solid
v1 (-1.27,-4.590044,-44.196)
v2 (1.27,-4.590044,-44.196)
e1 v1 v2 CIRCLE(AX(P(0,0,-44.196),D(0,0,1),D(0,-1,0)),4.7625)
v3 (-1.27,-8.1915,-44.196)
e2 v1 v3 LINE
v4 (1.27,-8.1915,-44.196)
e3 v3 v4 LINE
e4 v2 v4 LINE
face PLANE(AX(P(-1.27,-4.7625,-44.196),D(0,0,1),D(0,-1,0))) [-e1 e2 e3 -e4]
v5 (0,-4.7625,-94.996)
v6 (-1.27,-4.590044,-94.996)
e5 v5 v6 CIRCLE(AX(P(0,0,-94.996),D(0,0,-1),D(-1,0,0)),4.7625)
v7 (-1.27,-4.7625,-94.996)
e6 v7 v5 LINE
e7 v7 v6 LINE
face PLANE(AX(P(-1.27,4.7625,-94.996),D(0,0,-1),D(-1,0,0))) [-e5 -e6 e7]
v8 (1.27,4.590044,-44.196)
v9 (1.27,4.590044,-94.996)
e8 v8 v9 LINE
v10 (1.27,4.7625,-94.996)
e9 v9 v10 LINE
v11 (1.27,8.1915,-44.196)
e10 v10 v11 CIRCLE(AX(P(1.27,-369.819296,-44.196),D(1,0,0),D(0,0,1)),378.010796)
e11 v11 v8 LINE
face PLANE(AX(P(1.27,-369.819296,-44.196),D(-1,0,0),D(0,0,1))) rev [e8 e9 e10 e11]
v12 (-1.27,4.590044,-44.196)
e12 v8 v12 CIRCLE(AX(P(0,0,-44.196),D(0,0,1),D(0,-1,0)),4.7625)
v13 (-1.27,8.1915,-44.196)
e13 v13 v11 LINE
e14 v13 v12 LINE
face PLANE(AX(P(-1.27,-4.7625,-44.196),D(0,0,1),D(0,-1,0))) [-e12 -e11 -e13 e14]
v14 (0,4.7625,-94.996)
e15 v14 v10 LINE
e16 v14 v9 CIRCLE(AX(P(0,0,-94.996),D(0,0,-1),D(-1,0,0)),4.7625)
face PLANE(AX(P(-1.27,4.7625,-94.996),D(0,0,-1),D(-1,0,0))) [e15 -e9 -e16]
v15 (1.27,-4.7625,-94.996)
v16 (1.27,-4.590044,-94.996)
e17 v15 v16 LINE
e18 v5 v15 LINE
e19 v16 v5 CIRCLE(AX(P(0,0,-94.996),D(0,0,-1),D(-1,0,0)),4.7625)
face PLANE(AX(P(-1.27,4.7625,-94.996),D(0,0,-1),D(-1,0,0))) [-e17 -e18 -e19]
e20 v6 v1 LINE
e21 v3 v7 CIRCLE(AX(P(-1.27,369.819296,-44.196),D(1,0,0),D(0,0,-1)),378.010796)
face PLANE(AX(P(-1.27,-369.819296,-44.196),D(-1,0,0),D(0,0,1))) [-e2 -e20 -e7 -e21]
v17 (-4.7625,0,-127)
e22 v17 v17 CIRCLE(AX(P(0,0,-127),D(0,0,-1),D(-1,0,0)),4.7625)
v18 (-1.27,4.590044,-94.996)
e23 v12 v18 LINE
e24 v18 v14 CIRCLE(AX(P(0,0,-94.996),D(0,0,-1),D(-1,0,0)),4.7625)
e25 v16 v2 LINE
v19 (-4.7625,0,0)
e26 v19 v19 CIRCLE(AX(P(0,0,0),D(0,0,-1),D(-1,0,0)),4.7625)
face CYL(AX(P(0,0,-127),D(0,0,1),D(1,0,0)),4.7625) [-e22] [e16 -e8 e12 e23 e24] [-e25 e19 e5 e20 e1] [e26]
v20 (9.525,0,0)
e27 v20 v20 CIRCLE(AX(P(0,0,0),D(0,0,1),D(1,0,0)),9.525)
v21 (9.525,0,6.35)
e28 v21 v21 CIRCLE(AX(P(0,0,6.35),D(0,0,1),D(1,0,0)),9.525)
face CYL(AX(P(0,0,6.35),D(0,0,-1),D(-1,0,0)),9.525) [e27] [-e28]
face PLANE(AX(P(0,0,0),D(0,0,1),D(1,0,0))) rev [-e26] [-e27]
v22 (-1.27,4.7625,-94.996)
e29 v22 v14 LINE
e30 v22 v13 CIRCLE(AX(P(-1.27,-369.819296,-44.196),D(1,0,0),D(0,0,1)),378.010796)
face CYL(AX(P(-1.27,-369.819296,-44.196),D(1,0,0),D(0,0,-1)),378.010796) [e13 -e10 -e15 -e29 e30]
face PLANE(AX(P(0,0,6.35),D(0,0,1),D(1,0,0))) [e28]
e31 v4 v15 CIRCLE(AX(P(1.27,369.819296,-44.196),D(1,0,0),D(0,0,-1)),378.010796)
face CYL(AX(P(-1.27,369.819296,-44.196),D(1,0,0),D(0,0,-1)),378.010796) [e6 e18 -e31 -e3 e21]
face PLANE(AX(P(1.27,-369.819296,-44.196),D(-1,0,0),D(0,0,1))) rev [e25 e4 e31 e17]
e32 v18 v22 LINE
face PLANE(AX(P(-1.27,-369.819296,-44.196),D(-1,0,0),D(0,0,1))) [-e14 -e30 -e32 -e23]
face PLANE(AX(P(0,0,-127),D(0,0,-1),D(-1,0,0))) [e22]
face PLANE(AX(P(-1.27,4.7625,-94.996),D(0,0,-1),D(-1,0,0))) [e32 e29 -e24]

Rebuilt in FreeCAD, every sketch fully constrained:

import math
import FreeCAD as App
import Part
import Sketcher

V = App.Vector
Q = App.Units.Quantity

doc = App.newDocument("Part")
body = doc.addObject("PartDesign::Body", "Body")

sketch1 = body.newObject("Sketcher::SketchObject", "Sketch")
sketch1.AttachmentSupport = (doc.getObject("XY_Plane"), [""])
sketch1.MapMode = "FlatFace"
sketch1.addGeometry(Part.Circle(V(0, 0, 0), V(0, 0, 1), 10), False)
sketch1.addConstraint(Sketcher.Constraint("Coincident", 0, 3, -1, 1))
sketch1.addConstraint(Sketcher.Constraint("Diameter", 0, Q("0.75 in")))
pad1 = body.newObject("PartDesign::Pad", "Pad")
pad1.Profile = sketch1
pad1.Length = Q("0.25 in")

sketch2 = body.newObject("Sketcher::SketchObject", "Sketch001")
sketch2.AttachmentSupport = (doc.getObject("XY_Plane"), [""])
sketch2.MapMode = "FlatFace"
sketch2.addGeometry(Part.Circle(V(0, 0, 0), V(0, 0, 1), 4.8), False)
sketch2.addConstraint(Sketcher.Constraint("Coincident", 0, 3, -1, 1))
sketch2.addConstraint(Sketcher.Constraint("Diameter", 0, Q("0.375 in")))
pad2 = body.newObject("PartDesign::Pad", "Pad001")
pad2.Profile = sketch2
pad2.Length = Q("5 in")
pad2.Reversed = True

sketch3 = body.newObject("Sketcher::SketchObject", "Sketch002")
sketch3.AttachmentSupport = (doc.getObject("YZ_Plane"), [""])
sketch3.MapMode = "FlatFace"
sketch3.addGeometry(Part.ArcOfCircle(Part.Circle(V(-370, -44, 0), V(0, 0, 1), 378), math.radians(-7.72), math.radians(0)), False)
sketch3.addGeometry(Part.LineSegment(V(8, -44, 0), V(-8, -44, 0)), False)
sketch3.addGeometry(Part.ArcOfCircle(Part.Circle(V(370, -44, 0), V(0, 0, 1), 378), math.radians(180), math.radians(187.72)), False)
sketch3.addGeometry(Part.LineSegment(V(-5, -95, 0), V(5, -95, 0)), False)
sketch3.addConstraint(Sketcher.Constraint("Coincident", 0, 2, 1, 1))
sketch3.addConstraint(Sketcher.Constraint("Coincident", 1, 2, 2, 1))
sketch3.addConstraint(Sketcher.Constraint("Coincident", 2, 2, 3, 1))
sketch3.addConstraint(Sketcher.Constraint("Coincident", 3, 2, 0, 1))
sketch3.addConstraint(Sketcher.Constraint("Horizontal", 1))
sketch3.addConstraint(Sketcher.Constraint("Horizontal", 3))
sketch3.addConstraint(Sketcher.Constraint("Equal", 0, 2))
sketch3.addConstraint(Sketcher.Constraint("Symmetric", 0, 3, 2, 3, -2))
sketch3.addConstraint(Sketcher.Constraint("Horizontal", 2, 3, 0, 2))
sketch3.addConstraint(Sketcher.Constraint("DistanceY", 2, 2, 1, 2, Q("2 in")))
sketch3.addConstraint(Sketcher.Constraint("DistanceX", 1, 2, 1, 1, Q("0.645 in")))
sketch3.addConstraint(Sketcher.Constraint("DistanceX", 3, 1, 3, 2, Q("0.375 in")))
sketch3.addConstraint(Sketcher.Constraint("DistanceY", 0, 3, -1, 1, Q("1.74 in")))
pad3 = body.newObject("PartDesign::Pad", "Pad002")
pad3.Profile = sketch3
pad3.Type = "TwoLengths"
pad3.Length = Q("0.05 in")
pad3.Length2 = Q("0.05 in")

doc.recompute()
